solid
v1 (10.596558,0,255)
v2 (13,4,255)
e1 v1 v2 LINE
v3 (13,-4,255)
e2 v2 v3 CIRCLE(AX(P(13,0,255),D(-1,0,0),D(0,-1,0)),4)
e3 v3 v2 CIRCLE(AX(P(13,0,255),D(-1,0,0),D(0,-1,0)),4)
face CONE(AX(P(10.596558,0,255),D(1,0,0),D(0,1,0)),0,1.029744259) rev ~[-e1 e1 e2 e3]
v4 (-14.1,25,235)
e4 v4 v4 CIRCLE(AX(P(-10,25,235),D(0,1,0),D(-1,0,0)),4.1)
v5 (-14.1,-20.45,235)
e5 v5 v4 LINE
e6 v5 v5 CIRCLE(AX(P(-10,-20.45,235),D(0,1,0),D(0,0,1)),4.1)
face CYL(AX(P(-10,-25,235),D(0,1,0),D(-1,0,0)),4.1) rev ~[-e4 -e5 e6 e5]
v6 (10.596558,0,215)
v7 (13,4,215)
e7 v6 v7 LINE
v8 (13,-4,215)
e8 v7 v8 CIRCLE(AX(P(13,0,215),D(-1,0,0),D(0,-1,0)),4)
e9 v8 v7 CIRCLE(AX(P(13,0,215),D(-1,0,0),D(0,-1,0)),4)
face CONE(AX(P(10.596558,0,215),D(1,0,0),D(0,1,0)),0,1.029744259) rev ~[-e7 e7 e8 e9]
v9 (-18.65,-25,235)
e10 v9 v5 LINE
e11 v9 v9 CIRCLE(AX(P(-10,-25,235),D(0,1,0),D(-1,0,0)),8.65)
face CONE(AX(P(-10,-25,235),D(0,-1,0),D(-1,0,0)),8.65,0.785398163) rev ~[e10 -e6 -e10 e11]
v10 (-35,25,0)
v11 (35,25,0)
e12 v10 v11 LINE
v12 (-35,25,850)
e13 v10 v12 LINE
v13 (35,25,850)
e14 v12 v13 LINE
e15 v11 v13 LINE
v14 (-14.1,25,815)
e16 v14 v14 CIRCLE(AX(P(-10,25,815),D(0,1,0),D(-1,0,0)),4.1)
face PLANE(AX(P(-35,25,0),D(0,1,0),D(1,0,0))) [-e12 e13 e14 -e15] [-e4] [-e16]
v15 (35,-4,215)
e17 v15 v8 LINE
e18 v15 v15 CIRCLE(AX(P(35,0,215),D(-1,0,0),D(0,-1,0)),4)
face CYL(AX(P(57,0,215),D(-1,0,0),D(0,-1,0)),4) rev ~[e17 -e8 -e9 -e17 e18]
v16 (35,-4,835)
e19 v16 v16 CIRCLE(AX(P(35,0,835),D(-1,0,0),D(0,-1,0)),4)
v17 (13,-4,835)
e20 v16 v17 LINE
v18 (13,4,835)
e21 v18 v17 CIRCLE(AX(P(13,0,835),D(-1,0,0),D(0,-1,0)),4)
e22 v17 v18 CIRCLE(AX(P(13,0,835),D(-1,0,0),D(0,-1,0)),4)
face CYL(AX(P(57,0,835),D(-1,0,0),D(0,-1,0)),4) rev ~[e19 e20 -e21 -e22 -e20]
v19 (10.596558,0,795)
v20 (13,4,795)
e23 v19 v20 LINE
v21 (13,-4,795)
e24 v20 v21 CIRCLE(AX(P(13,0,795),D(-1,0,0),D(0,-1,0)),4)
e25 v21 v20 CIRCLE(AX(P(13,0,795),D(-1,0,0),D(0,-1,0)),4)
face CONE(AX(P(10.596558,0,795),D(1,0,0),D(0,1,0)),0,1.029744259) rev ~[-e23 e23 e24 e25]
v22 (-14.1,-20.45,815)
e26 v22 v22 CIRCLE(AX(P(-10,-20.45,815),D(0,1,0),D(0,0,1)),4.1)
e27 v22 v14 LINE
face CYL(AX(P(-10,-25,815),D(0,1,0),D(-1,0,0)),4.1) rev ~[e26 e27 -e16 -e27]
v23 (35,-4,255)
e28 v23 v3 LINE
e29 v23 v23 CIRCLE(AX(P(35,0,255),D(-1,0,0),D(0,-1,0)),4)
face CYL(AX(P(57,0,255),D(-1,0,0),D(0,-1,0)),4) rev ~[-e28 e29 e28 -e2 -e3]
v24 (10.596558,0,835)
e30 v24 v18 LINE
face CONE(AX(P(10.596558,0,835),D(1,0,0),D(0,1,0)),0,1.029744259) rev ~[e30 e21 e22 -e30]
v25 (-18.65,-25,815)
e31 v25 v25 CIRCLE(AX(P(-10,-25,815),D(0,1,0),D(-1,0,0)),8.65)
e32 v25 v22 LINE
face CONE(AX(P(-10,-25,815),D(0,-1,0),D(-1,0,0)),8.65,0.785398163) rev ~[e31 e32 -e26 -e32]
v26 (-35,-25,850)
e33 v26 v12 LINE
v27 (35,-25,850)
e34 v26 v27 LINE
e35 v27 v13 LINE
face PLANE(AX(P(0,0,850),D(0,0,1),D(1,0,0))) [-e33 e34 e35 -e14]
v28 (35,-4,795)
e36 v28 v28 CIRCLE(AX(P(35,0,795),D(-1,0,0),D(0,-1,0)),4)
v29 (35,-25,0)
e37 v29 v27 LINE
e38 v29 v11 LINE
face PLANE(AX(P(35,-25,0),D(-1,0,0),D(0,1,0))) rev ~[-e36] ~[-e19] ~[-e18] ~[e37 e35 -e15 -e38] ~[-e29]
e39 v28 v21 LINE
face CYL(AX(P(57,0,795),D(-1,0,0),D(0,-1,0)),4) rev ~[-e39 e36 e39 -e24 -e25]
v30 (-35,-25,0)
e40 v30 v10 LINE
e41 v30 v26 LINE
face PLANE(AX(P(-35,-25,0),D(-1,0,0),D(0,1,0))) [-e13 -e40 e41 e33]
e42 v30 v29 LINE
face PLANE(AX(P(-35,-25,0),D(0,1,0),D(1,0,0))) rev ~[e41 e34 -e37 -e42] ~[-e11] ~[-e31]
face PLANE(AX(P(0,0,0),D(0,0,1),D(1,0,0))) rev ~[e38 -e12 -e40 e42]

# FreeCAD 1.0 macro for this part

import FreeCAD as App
import Part
import Sketcher

V = App.Vector


def add_polygon(sketch, points):
    """Adds a closed chain of lines whose ends are joined by coincident constraints."""
    first, n = sketch.GeometryCount, len(points)
    for a, b in zip(points, points[1:] + points[:1]):
        sketch.addGeometry(Part.LineSegment(App.Vector(*a, 0), App.Vector(*b, 0)), False)
    for i in range(n):
        sketch.addConstraint(Sketcher.Constraint("Coincident", first + i, 2, first + (i + 1) % n, 1))

doc = App.newDocument("Part")
body = doc.addObject("PartDesign::Body", "Body")

sketch1 = body.newObject("Sketcher::SketchObject", "Sketch")
sketch1.AttachmentSupport = (doc.getObject("XY_Plane"), [""])
sketch1.MapMode = "FlatFace"
add_polygon(sketch1, [(-35, 25), (-35, -25), (35, -25), (35, 25)])
sketch1.addConstraint(Sketcher.Constraint("Vertical", 0))
sketch1.addConstraint(Sketcher.Constraint("Horizontal", 1))
sketch1.addConstraint(Sketcher.Constraint("Vertical", 2))
sketch1.addConstraint(Sketcher.Constraint("Horizontal", 3))
sketch1.addConstraint(Sketcher.Constraint("Symmetric", 0, 2, 2, 2, -1, 1))
sketch1.addConstraint(Sketcher.Constraint("DistanceX", 1, 1, 1, 2, 70.0))
sketch1.addConstraint(Sketcher.Constraint("DistanceY", 0, 2, 0, 1, 50.0))
pad1 = body.newObject("PartDesign::Pad", "Pad")
pad1.Profile = sketch1
pad1.Length = 850

sketch2 = body.newObject("Sketcher::SketchObject", "Sketch001")
sketch2.AttachmentSupport = (doc.getObject("YZ_Plane"), [""])
sketch2.MapMode = "FlatFace"
sketch2.AttachmentOffset = App.Placement(V(0, 0, 35), App.Rotation())
sketch2.addGeometry(Part.Circle(V(0, 215, 0), V(0, 0, 1), 4), False)
sketch2.addGeometry(Part.Circle(V(0, 255, 0), V(0, 0, 1), 4), False)
sketch2.addGeometry(Part.Circle(V(0, 795, 0), V(0, 0, 1), 4), False)
sketch2.addGeometry(Part.Circle(V(0, 835, 0), V(0, 0, 1), 4), False)
sketch2.addConstraint(Sketcher.Constraint("Equal", 0, 1))
sketch2.addConstraint(Sketcher.Constraint("Equal", 1, 2))
sketch2.addConstraint(Sketcher.Constraint("Equal", 2, 3))
sketch2.addConstraint(Sketcher.Constraint("PointOnObject", 0, 3, -2))
sketch2.addConstraint(Sketcher.Constraint("PointOnObject", 1, 3, -2))
sketch2.addConstraint(Sketcher.Constraint("PointOnObject", 2, 3, -2))
sketch2.addConstraint(Sketcher.Constraint("PointOnObject", 3, 3, -2))
sketch2.addConstraint(Sketcher.Constraint("Diameter", 0, 8.0))
sketch2.addConstraint(Sketcher.Constraint("DistanceY", -1, 1, 0, 3, 215.0))
sketch2.addConstraint(Sketcher.Constraint("DistanceY", -1, 1, 1, 3, 255.0))
sketch2.addConstraint(Sketcher.Constraint("DistanceY", -1, 1, 2, 3, 795.0))
sketch2.addConstraint(Sketcher.Constraint("DistanceY", -1, 1, 3, 3, 835.0))
doc.recompute()
hole = body.newObject("PartDesign::Hole", "Hole")
hole.Profile = sketch2
hole.ThreadType = "None"
hole.Diameter = 8
hole.DepthType = "Dimension"
hole.Depth = 22
hole.DrillPoint = "Angled"
hole.DrillPointAngle = 118

sketch3 = body.newObject("Sketcher::SketchObject", "Sketch002")
sketch3.AttachmentSupport = (doc.getObject("XZ_Plane"), [""])
sketch3.MapMode = "FlatFace"
sketch3.AttachmentOffset = App.Placement(V(0, 0, 25), App.Rotation())
sketch3.addGeometry(Part.Circle(V(-10, 235, 0), V(0, 0, 1), 4.1), False)
sketch3.addGeometry(Part.Circle(V(-10, 815, 0), V(0, 0, 1), 4.1), False)
sketch3.addConstraint(Sketcher.Constraint("Equal", 0, 1))
sketch3.addConstraint(Sketcher.Constraint("Vertical", 0, 3, 1, 3))
sketch3.addConstraint(Sketcher.Constraint("Diameter", 0, 8.2))
sketch3.addConstraint(Sketcher.Constraint("DistanceX", 0, 3, -1, 1, 10.0))
sketch3.addConstraint(Sketcher.Constraint("DistanceY", -1, 1, 0, 3, 235.0))
sketch3.addConstraint(Sketcher.Constraint("DistanceY", -1, 1, 1, 3, 815.0))
doc.recompute()
hole2 = body.newObject("PartDesign::Hole", "Hole001")
hole2.Profile = sketch3
hole2.ThreadType = "None"
hole2.Diameter = 8.2
hole2.DepthType = "ThroughAll"
hole2.HoleCutType = "Countersink"
hole2.HoleCutDiameter = 17.3
hole2.HoleCutCountersinkAngle = 90

doc.recompute()
